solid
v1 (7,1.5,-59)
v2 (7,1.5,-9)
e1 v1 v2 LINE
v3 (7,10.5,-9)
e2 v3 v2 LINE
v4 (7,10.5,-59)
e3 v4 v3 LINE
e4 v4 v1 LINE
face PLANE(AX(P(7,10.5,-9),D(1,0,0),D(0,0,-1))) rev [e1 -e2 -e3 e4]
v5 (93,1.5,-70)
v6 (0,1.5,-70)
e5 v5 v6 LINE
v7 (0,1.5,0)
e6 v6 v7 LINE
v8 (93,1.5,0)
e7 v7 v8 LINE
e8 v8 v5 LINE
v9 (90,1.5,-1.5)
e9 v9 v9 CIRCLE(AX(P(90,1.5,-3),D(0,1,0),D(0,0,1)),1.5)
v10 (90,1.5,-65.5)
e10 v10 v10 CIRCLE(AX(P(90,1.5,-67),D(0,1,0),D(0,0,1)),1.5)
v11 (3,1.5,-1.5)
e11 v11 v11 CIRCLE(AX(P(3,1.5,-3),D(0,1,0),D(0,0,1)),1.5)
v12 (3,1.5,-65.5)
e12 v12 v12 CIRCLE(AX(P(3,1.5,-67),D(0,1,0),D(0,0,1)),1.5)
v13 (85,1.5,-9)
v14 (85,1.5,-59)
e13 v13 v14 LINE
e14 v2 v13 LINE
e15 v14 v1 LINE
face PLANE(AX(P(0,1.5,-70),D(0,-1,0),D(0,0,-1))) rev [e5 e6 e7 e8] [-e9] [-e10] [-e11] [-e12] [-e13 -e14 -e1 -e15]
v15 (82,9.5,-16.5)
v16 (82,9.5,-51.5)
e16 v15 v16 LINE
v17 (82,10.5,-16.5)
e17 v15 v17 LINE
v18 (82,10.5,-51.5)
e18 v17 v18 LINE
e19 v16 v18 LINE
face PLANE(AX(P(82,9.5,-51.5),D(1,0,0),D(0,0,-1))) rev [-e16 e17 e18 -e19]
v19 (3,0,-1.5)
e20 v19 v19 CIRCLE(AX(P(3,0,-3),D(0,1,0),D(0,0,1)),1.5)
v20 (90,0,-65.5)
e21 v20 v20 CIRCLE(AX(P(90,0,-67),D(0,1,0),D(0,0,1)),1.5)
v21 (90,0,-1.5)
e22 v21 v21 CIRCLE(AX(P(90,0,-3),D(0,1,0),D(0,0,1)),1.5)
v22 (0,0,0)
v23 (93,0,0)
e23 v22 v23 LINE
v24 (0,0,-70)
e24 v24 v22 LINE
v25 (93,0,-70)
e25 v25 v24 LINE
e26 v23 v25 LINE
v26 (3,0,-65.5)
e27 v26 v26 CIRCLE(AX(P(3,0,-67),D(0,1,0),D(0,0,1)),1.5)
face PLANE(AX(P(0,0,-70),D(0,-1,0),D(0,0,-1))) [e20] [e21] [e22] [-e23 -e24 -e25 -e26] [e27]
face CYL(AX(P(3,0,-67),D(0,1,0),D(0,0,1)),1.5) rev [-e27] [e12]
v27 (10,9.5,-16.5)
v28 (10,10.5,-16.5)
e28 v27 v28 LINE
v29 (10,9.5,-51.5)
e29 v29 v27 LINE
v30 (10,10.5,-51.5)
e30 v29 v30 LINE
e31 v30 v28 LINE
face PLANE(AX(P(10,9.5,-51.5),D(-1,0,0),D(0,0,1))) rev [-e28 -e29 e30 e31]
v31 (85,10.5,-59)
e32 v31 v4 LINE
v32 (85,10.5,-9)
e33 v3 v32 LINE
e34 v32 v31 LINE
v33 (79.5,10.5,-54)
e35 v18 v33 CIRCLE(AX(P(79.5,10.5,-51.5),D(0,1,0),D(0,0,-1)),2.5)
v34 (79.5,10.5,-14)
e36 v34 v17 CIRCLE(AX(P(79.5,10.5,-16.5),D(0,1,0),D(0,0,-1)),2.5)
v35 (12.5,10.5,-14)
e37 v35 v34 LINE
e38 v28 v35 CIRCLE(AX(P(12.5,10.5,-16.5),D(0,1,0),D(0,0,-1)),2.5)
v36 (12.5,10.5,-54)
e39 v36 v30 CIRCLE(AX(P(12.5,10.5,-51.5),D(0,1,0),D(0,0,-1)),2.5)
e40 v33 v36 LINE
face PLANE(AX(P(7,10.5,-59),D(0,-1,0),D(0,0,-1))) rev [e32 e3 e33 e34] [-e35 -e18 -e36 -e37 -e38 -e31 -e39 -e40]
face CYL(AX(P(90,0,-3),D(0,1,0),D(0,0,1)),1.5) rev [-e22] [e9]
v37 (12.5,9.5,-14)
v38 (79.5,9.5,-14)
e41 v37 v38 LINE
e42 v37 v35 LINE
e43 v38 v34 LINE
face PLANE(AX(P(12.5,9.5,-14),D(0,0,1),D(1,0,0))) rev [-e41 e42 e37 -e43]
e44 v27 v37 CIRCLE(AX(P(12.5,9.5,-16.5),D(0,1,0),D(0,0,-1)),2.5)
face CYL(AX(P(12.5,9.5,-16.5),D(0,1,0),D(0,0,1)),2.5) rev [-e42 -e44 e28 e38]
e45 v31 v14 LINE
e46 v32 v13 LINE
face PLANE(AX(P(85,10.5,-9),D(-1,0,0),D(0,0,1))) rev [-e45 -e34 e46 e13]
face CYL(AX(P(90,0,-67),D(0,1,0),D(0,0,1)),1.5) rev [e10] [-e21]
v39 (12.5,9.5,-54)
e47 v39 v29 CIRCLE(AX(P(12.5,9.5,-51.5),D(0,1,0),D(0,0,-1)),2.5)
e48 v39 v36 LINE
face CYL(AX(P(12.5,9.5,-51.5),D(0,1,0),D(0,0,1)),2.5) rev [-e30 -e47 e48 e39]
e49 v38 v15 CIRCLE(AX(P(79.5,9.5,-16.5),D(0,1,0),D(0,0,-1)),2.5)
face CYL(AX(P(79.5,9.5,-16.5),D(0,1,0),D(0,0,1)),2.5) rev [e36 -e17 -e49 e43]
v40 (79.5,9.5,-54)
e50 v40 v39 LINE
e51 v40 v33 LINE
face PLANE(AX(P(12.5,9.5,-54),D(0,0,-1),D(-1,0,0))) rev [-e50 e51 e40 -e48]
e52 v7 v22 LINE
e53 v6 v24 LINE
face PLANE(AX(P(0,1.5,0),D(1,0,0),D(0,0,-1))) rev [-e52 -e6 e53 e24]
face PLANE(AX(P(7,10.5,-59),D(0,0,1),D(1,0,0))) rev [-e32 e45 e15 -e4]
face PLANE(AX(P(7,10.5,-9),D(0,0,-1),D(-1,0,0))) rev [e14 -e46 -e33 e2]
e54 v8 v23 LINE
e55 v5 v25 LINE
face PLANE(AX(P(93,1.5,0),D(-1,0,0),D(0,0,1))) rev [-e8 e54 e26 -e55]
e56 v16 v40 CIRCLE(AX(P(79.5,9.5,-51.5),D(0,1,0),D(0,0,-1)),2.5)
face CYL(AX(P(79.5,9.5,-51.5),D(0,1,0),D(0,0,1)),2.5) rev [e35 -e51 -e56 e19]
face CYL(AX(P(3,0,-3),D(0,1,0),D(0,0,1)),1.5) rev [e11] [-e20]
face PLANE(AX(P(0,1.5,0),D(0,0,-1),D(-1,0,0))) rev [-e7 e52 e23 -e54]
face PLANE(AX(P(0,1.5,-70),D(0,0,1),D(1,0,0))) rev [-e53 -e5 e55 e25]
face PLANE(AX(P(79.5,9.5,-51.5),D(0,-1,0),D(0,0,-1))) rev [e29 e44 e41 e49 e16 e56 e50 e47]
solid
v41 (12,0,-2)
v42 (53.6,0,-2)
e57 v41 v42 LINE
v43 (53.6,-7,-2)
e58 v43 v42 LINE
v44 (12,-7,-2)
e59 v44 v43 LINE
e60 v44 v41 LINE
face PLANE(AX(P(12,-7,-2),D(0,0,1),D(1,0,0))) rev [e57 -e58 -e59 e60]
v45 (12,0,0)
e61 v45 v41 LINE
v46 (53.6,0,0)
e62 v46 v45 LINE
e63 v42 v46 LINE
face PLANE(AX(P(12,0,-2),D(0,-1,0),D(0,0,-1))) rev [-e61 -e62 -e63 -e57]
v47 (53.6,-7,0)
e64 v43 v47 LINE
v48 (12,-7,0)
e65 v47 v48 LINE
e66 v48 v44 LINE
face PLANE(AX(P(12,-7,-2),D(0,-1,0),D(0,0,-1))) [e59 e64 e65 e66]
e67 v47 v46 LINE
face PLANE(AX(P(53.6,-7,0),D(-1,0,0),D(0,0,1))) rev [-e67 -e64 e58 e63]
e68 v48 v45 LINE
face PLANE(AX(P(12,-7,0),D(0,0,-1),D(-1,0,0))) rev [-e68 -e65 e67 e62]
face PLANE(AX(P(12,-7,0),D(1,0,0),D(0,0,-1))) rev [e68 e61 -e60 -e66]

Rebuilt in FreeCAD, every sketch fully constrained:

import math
import FreeCAD as App
import Part
import Sketcher

V = App.Vector


def add_polygon(sketch, points):
    """Adds a closed chain of lines whose ends are joined by coincident constraints."""
    first, n = sketch.GeometryCount, len(points)
    for a, b in zip(points, points[1:] + points[:1]):
        sketch.addGeometry(Part.LineSegment(App.Vector(*a, 0), App.Vector(*b, 0)), False)
    for i in range(n):
        sketch.addConstraint(Sketcher.Constraint("Coincident", first + i, 2, first + (i + 1) % n, 1))

doc = App.newDocument("Part")
body = doc.addObject("PartDesign::Body", "Body")

sketch1 = doc.addObject("Sketcher::SketchObject", "Sketch")
body.addObject(sketch1)
sketch1.AttachmentSupport = (doc.XZ_Plane, [""])
sketch1.MapMode = "FlatFace"
add_polygon(sketch1, [(0, -70), (0, 0), (93, 0), (93, -70)])
sketch1.addConstraint(Sketcher.Constraint("Vertical", 0))
sketch1.addConstraint(Sketcher.Constraint("Horizontal", 1))
sketch1.addConstraint(Sketcher.Constraint("Vertical", 2))
sketch1.addConstraint(Sketcher.Constraint("Horizontal", 3))
sketch1.addConstraint(Sketcher.Constraint("Coincident", 0, 2, -1, 1))
sketch1.addConstraint(Sketcher.Constraint("DistanceX", 1, 1, 1, 2, 93.0))
sketch1.addConstraint(Sketcher.Constraint("DistanceY", 0, 1, 0, 2, 70.0))
pad1 = doc.addObject("PartDesign::Pad", "Pad")
body.addObject(pad1)
pad1.Profile = sketch1
pad1.Length = 1.5
pad1.Reversed = True

sketch2 = doc.addObject("Sketcher::SketchObject", "Sketch001")
body.addObject(sketch2)
sketch2.AttachmentSupport = (doc.XZ_Plane, [""])
sketch2.MapMode = "FlatFace"
sketch2.AttachmentOffset = App.Placement(V(0, 0, -1.5), App.Rotation())
add_polygon(sketch2, [(7, -59), (7, -9), (85, -9), (85, -59)])
sketch2.addConstraint(Sketcher.Constraint("Vertical", 0))
sketch2.addConstraint(Sketcher.Constraint("Horizontal", 1))
sketch2.addConstraint(Sketcher.Constraint("Vertical", 2))
sketch2.addConstraint(Sketcher.Constraint("Horizontal", 3))
sketch2.addConstraint(Sketcher.Constraint("DistanceX", 1, 1, 1, 2, 78.0))
sketch2.addConstraint(Sketcher.Constraint("DistanceY", 0, 1, 0, 2, 50.0))
sketch2.addConstraint(Sketcher.Constraint("DistanceX", -1, 1, 0, 2, 7.0))
sketch2.addConstraint(Sketcher.Constraint("DistanceY", 0, 2, -1, 1, 9.0))
pad2 = doc.addObject("PartDesign::Pad", "Pad001")
body.addObject(pad2)
pad2.Profile = sketch2
pad2.Length = 9
pad2.Reversed = True

sketch3 = doc.addObject("Sketcher::SketchObject", "Sketch002")
body.addObject(sketch3)
sketch3.AttachmentSupport = (doc.XZ_Plane, [""])
sketch3.MapMode = "FlatFace"
sketch3.AttachmentOffset = App.Placement(V(0, 0, -10.5), App.Rotation())
sketch3.addGeometry(Part.LineSegment(V(79.5, -54, 0), V(12.5, -54, 0)), False)
sketch3.addGeometry(Part.ArcOfCircle(Part.Circle(V(12.5, -51.5, 0), V(0, 0, 1), 2.5), math.radians(180), math.radians(270)), False)
sketch3.addGeometry(Part.LineSegment(V(10, -51.5, 0), V(10, -16.5, 0)), False)
sketch3.addGeometry(Part.ArcOfCircle(Part.Circle(V(12.5, -16.5, 0), V(0, 0, 1), 2.5), math.radians(90), math.radians(180)), False)
sketch3.addGeometry(Part.LineSegment(V(12.5, -14, 0), V(79.5, -14, 0)), False)
sketch3.addGeometry(Part.ArcOfCircle(Part.Circle(V(79.5, -16.5, 0), V(0, 0, 1), 2.5), math.radians(0), math.radians(90)), False)
sketch3.addGeometry(Part.LineSegment(V(82, -16.5, 0), V(82, -51.5, 0)), False)
sketch3.addGeometry(Part.ArcOfCircle(Part.Circle(V(79.5, -51.5, 0), V(0, 0, 1), 2.5), math.radians(-90), math.radians(0)), False)
sketch3.addConstraint(Sketcher.Constraint("Tangent", 0, 2, 1, 2))
sketch3.addConstraint(Sketcher.Constraint("Tangent", 1, 1, 2, 1))
sketch3.addConstraint(Sketcher.Constraint("Tangent", 2, 2, 3, 2))
sketch3.addConstraint(Sketcher.Constraint("Tangent", 3, 1, 4, 1))
sketch3.addConstraint(Sketcher.Constraint("Tangent", 4, 2, 5, 2))
sketch3.addConstraint(Sketcher.Constraint("Tangent", 5, 1, 6, 1))
sketch3.addConstraint(Sketcher.Constraint("Tangent", 6, 2, 7, 2))
sketch3.addConstraint(Sketcher.Constraint("Tangent", 7, 1, 0, 1))
sketch3.addConstraint(Sketcher.Constraint("Horizontal", 0))
sketch3.addConstraint(Sketcher.Constraint("Vertical", 2))
sketch3.addConstraint(Sketcher.Constraint("Horizontal", 4))
sketch3.addConstraint(Sketcher.Constraint("Vertical", 6))
sketch3.addConstraint(Sketcher.Constraint("Equal", 1, 3))
sketch3.addConstraint(Sketcher.Constraint("Equal", 3, 5))
sketch3.addConstraint(Sketcher.Constraint("Equal", 5, 7))
sketch3.addConstraint(Sketcher.Constraint("Radius", 1, 2.5))
sketch3.addConstraint(Sketcher.Constraint("DistanceX", 0, 2, 0, 1, 67.0))
sketch3.addConstraint(Sketcher.Constraint("DistanceY", 2, 1, 2, 2, 35.0))
sketch3.addConstraint(Sketcher.Constraint("DistanceY", 0, 2, -1, 1, 54.0))
sketch3.addConstraint(Sketcher.Constraint("DistanceX", -1, 1, 1, 1, 10.0))
pocket1 = doc.addObject("PartDesign::Pocket", "Pocket")
body.addObject(pocket1)
pocket1.Profile = sketch3
pocket1.Length = 1
pocket1.Reversed = True

sketch4 = doc.addObject("Sketcher::SketchObject", "Sketch003")
body.addObject(sketch4)
sketch4.AttachmentSupport = (doc.XZ_Plane, [""])
sketch4.MapMode = "FlatFace"
sketch4.AttachmentOffset = App.Placement(V(0, 0, -1.5), App.Rotation())
sketch4.addGeometry(Part.Circle(V(3, -67, 0), V(0, 0, 1), 1.5), False)
sketch4.addGeometry(Part.Circle(V(90, -67, 0), V(0, 0, 1), 1.5), False)
sketch4.addGeometry(Part.Circle(V(90, -3, 0), V(0, 0, 1), 1.5), False)
sketch4.addGeometry(Part.Circle(V(3, -3, 0), V(0, 0, 1), 1.5), False)
sketch4.addConstraint(Sketcher.Constraint("Equal", 0, 1))
sketch4.addConstraint(Sketcher.Constraint("Equal", 1, 2))
sketch4.addConstraint(Sketcher.Constraint("Equal", 2, 3))
sketch4.addConstraint(Sketcher.Constraint("Horizontal", 0, 3, 1, 3))
sketch4.addConstraint(Sketcher.Constraint("Horizontal", 2, 3, 3, 3))
sketch4.addConstraint(Sketcher.Constraint("Vertical", 1, 3, 2, 3))
sketch4.addConstraint(Sketcher.Constraint("Vertical", 0, 3, 3, 3))
sketch4.addConstraint(Sketcher.Constraint("Diameter", 0, 3.0))
sketch4.addConstraint(Sketcher.Constraint("DistanceX", -1, 1, 0, 3, 3.0))
sketch4.addConstraint(Sketcher.Constraint("DistanceY", 0, 3, -1, 1, 67.0))
sketch4.addConstraint(Sketcher.Constraint("DistanceX", -1, 1, 1, 3, 90.0))
sketch4.addConstraint(Sketcher.Constraint("DistanceY", 2, 3, -1, 1, 3.0))
pocket2 = doc.addObject("PartDesign::Pocket", "Pocket001")
body.addObject(pocket2)
pocket2.Profile = sketch4
pocket2.Type = "ThroughAll"
pocket2.Reversed = True
body2 = doc.addObject("PartDesign::Body", "Body001")

sketch5 = doc.addObject("Sketcher::SketchObject", "Sketch004")
body2.addObject(sketch5)
sketch5.AttachmentSupport = (doc.getObject("XZ_Plane001"), [""])
sketch5.MapMode = "FlatFace"
add_polygon(sketch5, [(12, 0), (12, -2), (53.6, -2), (53.6, 0)])
sketch5.addConstraint(Sketcher.Constraint("Vertical", 0))
sketch5.addConstraint(Sketcher.Constraint("Horizontal", 1))
sketch5.addConstraint(Sketcher.Constraint("Vertical", 2))
sketch5.addConstraint(Sketcher.Constraint("Horizontal", 3))
sketch5.addConstraint(Sketcher.Constraint("PointOnObject", 2, 2, -1))
sketch5.addConstraint(Sketcher.Constraint("DistanceY", 0, 2, 0, 1, 2.0))
sketch5.addConstraint(Sketcher.Constraint("DistanceX", 1, 1, 1, 2, 41.6))
sketch5.addConstraint(Sketcher.Constraint("DistanceX", -1, 1, 0, 2, 12.0))
pad3 = doc.addObject("PartDesign::Pad", "Pad002")
body2.addObject(pad3)
pad3.Profile = sketch5
pad3.Length = 7

doc.recompute()
